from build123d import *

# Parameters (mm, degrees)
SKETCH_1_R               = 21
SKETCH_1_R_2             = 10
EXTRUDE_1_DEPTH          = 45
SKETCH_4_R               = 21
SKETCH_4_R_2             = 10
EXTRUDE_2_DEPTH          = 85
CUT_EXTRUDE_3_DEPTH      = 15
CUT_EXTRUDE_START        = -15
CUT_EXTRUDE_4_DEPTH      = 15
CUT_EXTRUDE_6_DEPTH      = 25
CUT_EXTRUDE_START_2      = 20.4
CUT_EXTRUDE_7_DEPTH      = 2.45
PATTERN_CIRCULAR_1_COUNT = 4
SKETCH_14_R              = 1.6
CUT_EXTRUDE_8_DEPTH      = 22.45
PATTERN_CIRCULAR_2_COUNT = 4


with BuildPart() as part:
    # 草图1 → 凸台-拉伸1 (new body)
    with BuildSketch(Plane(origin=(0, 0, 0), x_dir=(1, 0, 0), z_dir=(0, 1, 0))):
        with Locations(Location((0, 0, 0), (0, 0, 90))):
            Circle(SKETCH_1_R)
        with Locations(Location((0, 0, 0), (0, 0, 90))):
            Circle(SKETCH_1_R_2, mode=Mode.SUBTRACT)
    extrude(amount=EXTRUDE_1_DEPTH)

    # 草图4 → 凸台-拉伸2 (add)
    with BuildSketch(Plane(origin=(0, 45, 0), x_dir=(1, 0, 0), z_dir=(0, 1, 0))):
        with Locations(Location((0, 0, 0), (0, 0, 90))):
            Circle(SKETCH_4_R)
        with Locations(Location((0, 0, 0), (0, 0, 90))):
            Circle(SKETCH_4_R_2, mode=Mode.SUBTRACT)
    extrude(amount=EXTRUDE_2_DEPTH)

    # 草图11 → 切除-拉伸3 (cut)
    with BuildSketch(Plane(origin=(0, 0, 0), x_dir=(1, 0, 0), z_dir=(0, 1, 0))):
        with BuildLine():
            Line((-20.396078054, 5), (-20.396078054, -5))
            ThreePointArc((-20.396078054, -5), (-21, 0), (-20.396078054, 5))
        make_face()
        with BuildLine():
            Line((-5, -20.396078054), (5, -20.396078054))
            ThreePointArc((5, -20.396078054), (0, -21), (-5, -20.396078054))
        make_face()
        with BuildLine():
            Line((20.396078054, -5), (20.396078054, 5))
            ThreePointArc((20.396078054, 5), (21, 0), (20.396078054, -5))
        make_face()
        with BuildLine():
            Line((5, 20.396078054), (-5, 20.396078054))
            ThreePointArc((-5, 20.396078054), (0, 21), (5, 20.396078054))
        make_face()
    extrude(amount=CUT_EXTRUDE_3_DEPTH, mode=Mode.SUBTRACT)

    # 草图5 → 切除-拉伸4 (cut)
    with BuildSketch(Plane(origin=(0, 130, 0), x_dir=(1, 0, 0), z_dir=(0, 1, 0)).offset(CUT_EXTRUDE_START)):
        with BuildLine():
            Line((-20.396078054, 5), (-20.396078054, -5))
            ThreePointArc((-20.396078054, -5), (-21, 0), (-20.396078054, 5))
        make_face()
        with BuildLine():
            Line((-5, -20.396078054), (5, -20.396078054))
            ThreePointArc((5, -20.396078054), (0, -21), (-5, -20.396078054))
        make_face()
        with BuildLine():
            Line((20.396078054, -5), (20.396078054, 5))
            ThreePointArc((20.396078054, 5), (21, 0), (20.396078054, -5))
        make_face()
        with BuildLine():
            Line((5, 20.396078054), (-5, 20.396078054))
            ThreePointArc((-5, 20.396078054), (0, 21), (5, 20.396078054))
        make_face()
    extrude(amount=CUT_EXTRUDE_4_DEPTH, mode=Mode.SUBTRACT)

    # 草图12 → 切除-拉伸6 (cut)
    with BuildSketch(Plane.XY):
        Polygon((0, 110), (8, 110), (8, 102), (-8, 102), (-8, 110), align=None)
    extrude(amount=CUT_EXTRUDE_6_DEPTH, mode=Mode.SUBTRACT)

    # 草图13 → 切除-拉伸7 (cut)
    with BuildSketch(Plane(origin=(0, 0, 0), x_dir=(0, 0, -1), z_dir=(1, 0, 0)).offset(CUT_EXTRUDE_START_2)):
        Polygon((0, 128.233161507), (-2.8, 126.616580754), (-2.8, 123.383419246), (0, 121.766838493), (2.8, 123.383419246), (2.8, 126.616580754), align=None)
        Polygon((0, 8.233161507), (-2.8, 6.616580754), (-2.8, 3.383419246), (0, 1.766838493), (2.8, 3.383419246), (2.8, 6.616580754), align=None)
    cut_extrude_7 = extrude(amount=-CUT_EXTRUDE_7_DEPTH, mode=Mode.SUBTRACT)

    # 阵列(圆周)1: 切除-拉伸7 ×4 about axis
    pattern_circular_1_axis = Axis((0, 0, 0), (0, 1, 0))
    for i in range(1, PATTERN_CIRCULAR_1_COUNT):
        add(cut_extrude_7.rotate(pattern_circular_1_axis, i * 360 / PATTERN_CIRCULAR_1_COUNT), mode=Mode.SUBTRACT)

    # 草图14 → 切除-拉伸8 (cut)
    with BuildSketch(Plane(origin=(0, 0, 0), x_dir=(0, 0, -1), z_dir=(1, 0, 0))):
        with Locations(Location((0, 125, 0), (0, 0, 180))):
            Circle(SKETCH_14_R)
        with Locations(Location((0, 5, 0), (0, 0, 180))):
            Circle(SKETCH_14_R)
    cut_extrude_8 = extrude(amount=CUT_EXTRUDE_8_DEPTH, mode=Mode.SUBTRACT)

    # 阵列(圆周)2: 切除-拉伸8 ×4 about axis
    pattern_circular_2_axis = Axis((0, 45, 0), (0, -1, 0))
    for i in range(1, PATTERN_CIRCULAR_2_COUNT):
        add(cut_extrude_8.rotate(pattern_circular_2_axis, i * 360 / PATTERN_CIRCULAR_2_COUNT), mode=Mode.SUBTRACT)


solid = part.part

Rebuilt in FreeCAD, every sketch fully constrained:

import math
import FreeCAD as App
import Part
import Sketcher
Q = App.Units.Quantity


def add_polygon(sketch, points):
    """Adds a closed chain of lines whose ends are joined by coincident constraints."""
    first, n = sketch.GeometryCount, len(points)
    for a, b in zip(points, points[1:] + points[:1]):
        sketch.addGeometry(Part.LineSegment(App.Vector(*a, 0), App.Vector(*b, 0)), False)
    for i in range(n):
        sketch.addConstraint(Sketcher.Constraint("Coincident", first + i, 2, first + (i + 1) % n, 1))

doc = App.newDocument("Part")
body = doc.addObject("PartDesign::Body", "Body")

sketch1 = body.newObject("Sketcher::SketchObject", "Sketch")
sketch1.AttachmentSupport = (doc.getObject("XZ_Plane"), [""])
sketch1.MapMode = "FlatFace"
sketch1.addGeometry([
    Part.Circle(App.Vector(0, 0, 0), App.Vector(0, 0, 1), 21),
    Part.Circle(App.Vector(0, 0, 0), App.Vector(0, 0, 1), 10),
], False)
sketch1.addConstraint([
    Sketcher.Constraint("Coincident", 0, 3, -1, 1),
    Sketcher.Constraint("Coincident", 1, 3, -1, 1),
    Sketcher.Constraint("Diameter", 0, Q("42 mm")),
    Sketcher.Constraint("Diameter", 1, Q("20 mm")),
])
pad1 = body.newObject("PartDesign::Pad", "Pad")
pad1.Profile = sketch1
pad1.Length = 45
pad1.Reversed = True

sketch2 = body.newObject("Sketcher::SketchObject", "Sketch001")
sketch2.AttachmentSupport = (doc.getObject("XZ_Plane"), [""])
sketch2.MapMode = "FlatFace"
sketch2.AttachmentOffset = App.Placement(App.Vector(0, 0, -45), App.Rotation())
sketch2.addGeometry([
    Part.Circle(App.Vector(0, 0, 0), App.Vector(0, 0, 1), 21),
    Part.Circle(App.Vector(0, 0, 0), App.Vector(0, 0, 1), 10),
], False)
sketch2.addConstraint([
    Sketcher.Constraint("Coincident", 0, 3, -1, 1),
    Sketcher.Constraint("Coincident", 1, 3, -1, 1),
    Sketcher.Constraint("Diameter", 0, Q("42 mm")),
    Sketcher.Constraint("Diameter", 1, Q("20 mm")),
])
pad2 = body.newObject("PartDesign::Pad", "Pad001")
pad2.Profile = sketch2
pad2.Length = 85
pad2.Reversed = True

sketch3 = body.newObject("Sketcher::SketchObject", "Sketch002")
sketch3.AttachmentSupport = (doc.getObject("XZ_Plane"), [""])
sketch3.MapMode = "FlatFace"
sketch3.addGeometry([
    Part.LineSegment(App.Vector(-20, 5, 0), App.Vector(-20, -5, 0)),
    Part.ArcOfCircle(Part.Circle(App.Vector(0, 0, 0), App.Vector(0, 0, 1), 21), math.radians(166), math.radians(194)),
    Part.LineSegment(App.Vector(5, 20, 0), App.Vector(-5, 20, 0)),
    Part.ArcOfCircle(Part.Circle(App.Vector(0, 0, 0), App.Vector(0, 0, 1), 21), math.radians(76), math.radians(104)),
    Part.LineSegment(App.Vector(20, -5, 0), App.Vector(20, 5, 0)),
    Part.ArcOfCircle(Part.Circle(App.Vector(0, 0, 0), App.Vector(0, 0, 1), 21), math.radians(-14), math.radians(14)),
    Part.LineSegment(App.Vector(-5, -20, 0), App.Vector(5, -20, 0)),
    Part.ArcOfCircle(Part.Circle(App.Vector(0, 0, 0), App.Vector(0, 0, 1), 21), math.radians(-104), math.radians(-76)),
], False)
sketch3.addConstraint([
    Sketcher.Constraint("Coincident", 0, 1, 1, 1),
    Sketcher.Constraint("Coincident", 1, 2, 0, 2),
    Sketcher.Constraint("Coincident", 2, 1, 3, 1),
    Sketcher.Constraint("Coincident", 3, 2, 2, 2),
    Sketcher.Constraint("Coincident", 4, 1, 5, 1),
    Sketcher.Constraint("Coincident", 5, 2, 4, 2),
    Sketcher.Constraint("Coincident", 6, 1, 7, 1),
    Sketcher.Constraint("Coincident", 7, 2, 6, 2),
    Sketcher.Constraint("Vertical", 0),
    Sketcher.Constraint("Horizontal", 2),
    Sketcher.Constraint("Vertical", 4),
    Sketcher.Constraint("Horizontal", 6),
    Sketcher.Constraint("Coincident", 1, 3, -1, 1),
    Sketcher.Constraint("Coincident", 3, 3, -1, 1),
    Sketcher.Constraint("Coincident", 5, 3, -1, 1),
    Sketcher.Constraint("Coincident", 7, 3, -1, 1),
    Sketcher.Constraint("Equal", 1, 3),
    Sketcher.Constraint("Equal", 3, 5),
    Sketcher.Constraint("Equal", 5, 7),
    Sketcher.Constraint("Horizontal", 1, 2, 4, 1),
    Sketcher.Constraint("Vertical", 3, 2, 6, 1),
    Sketcher.Constraint("Equal", 6, 0),
    Sketcher.Constraint("Radius", 1, Q("21 mm")),
    Sketcher.Constraint("DistanceX", 2, 2, 2, 1, Q("10 mm")),
])
pocket1 = body.newObject("PartDesign::Pocket", "Pocket")
pocket1.Profile = sketch3
pocket1.Length = 15

sketch4 = body.newObject("Sketcher::SketchObject", "Sketch003")
sketch4.AttachmentSupport = (doc.getObject("XZ_Plane"), [""])
sketch4.MapMode = "FlatFace"
sketch4.AttachmentOffset = App.Placement(App.Vector(0, 0, -115), App.Rotation())
sketch4.addGeometry([
    Part.LineSegment(App.Vector(-20, 5, 0), App.Vector(-20, -5, 0)),
    Part.ArcOfCircle(Part.Circle(App.Vector(0, 0, 0), App.Vector(0, 0, 1), 21), math.radians(166), math.radians(194)),
    Part.LineSegment(App.Vector(5, 20, 0), App.Vector(-5, 20, 0)),
    Part.ArcOfCircle(Part.Circle(App.Vector(0, 0, 0), App.Vector(0, 0, 1), 21), math.radians(76), math.radians(104)),
    Part.LineSegment(App.Vector(20, -5, 0), App.Vector(20, 5, 0)),
    Part.ArcOfCircle(Part.Circle(App.Vector(0, 0, 0), App.Vector(0, 0, 1), 21), math.radians(-14), math.radians(14)),
    Part.LineSegment(App.Vector(-5, -20, 0), App.Vector(5, -20, 0)),
    Part.ArcOfCircle(Part.Circle(App.Vector(0, 0, 0), App.Vector(0, 0, 1), 21), math.radians(-104), math.radians(-76)),
], False)
sketch4.addConstraint([
    Sketcher.Constraint("Coincident", 0, 1, 1, 1),
    Sketcher.Constraint("Coincident", 1, 2, 0, 2),
    Sketcher.Constraint("Coincident", 2, 1, 3, 1),
    Sketcher.Constraint("Coincident", 3, 2, 2, 2),
    Sketcher.Constraint("Coincident", 4, 1, 5, 1),
    Sketcher.Constraint("Coincident", 5, 2, 4, 2),
    Sketcher.Constraint("Coincident", 6, 1, 7, 1),
    Sketcher.Constraint("Coincident", 7, 2, 6, 2),
    Sketcher.Constraint("Vertical", 0),
    Sketcher.Constraint("Horizontal", 2),
    Sketcher.Constraint("Vertical", 4),
    Sketcher.Constraint("Horizontal", 6),
    Sketcher.Constraint("Coincident", 1, 3, -1, 1),
    Sketcher.Constraint("Coincident", 3, 3, -1, 1),
    Sketcher.Constraint("Coincident", 5, 3, -1, 1),
    Sketcher.Constraint("Coincident", 7, 3, -1, 1),
    Sketcher.Constraint("Equal", 1, 3),
    Sketcher.Constraint("Equal", 3, 5),
    Sketcher.Constraint("Equal", 5, 7),
    Sketcher.Constraint("Horizontal", 1, 2, 4, 1),
    Sketcher.Constraint("Vertical", 3, 2, 6, 1),
    Sketcher.Constraint("Equal", 6, 0),
    Sketcher.Constraint("Radius", 1, Q("21 mm")),
    Sketcher.Constraint("DistanceX", 2, 2, 2, 1, Q("10 mm")),
])
pocket2 = body.newObject("PartDesign::Pocket", "Pocket001")
pocket2.Profile = sketch4
pocket2.Length = 15

sketch5 = body.newObject("Sketcher::SketchObject", "Sketch004")
sketch5.AttachmentSupport = (doc.getObject("XY_Plane"), [""])
sketch5.MapMode = "FlatFace"
add_polygon(sketch5, [(8, 110), (-8, 110), (-8, 102), (8, 102)])
sketch5.addConstraint([
    Sketcher.Constraint("Horizontal", 0),
    Sketcher.Constraint("Vertical", 1),
    Sketcher.Constraint("Horizontal", 2),
    Sketcher.Constraint("Vertical", 3),
    Sketcher.Constraint("DistanceX", 0, 2, 0, 1, Q("16 mm")),
    Sketcher.Constraint("DistanceY", 1, 2, 1, 1, Q("8 mm")),
    Sketcher.Constraint("DistanceX", 0, 2, -1, 1, Q("8 mm")),
    Sketcher.Constraint("DistanceY", -1, 1, 0, 2, Q("110 mm")),
])
pocket3 = body.newObject("PartDesign::Pocket", "Pocket002")
pocket3.Profile = sketch5
pocket3.Length = 25
pocket3.Reversed = True

sketch6 = body.newObject("Sketcher::SketchObject", "Sketch005")
sketch6.AttachmentSupport = (doc.getObject("YZ_Plane"), [""])
sketch6.MapMode = "FlatFace"
sketch6.AttachmentOffset = App.Placement(App.Vector(0, 0, 20.4), App.Rotation())
add_polygon(sketch6, [(128.2, 0), (126.6, 2.8), (123.4, 2.8), (121.8, 0), (123.4, -2.8), (126.6, -2.8)])
add_polygon(sketch6, [(8.2, 0), (6.6, 2.8), (3.4, 2.8), (1.8, 0), (3.4, -2.8), (6.6, -2.8)])
sketch6.addConstraint([
    Sketcher.Constraint("Horizontal", 1),
    Sketcher.Constraint("Horizontal", 4),
    Sketcher.Constraint("Horizontal", 7),
    Sketcher.Constraint("Horizontal", 10),
    Sketcher.Constraint("Symmetric", 1, 2, 3, 2, -1),
    Sketcher.Constraint("Symmetric", 7, 2, 9, 2, -1),
    Sketcher.Constraint("PointOnObject", 2, 2, -1),
    Sketcher.Constraint("PointOnObject", 5, 2, -1),
    Sketcher.Constraint("PointOnObject", 8, 2, -1),
    Sketcher.Constraint("PointOnObject", 11, 2, -1),
    Sketcher.Constraint("Parallel", 0, 3),
    Sketcher.Constraint("Parallel", 2, 5),
    Sketcher.Constraint("Parallel", 3, 6),
    Sketcher.Constraint("Parallel", 5, 8),
    Sketcher.Constraint("Parallel", 8, 11),
    Sketcher.Constraint("Horizontal", 1, 2, 6, 2),
    Sketcher.Constraint("Equal", 4, 7),
    Sketcher.Constraint("Angle", 0, Q("120 deg")),
    Sketcher.Constraint("DistanceX", 6, 2, 0, 2, Q("120 mm")),
    Sketcher.Constraint("DistanceY", -1, 1, 0, 2, Q("2.8 mm")),
    Sketcher.Constraint("DistanceX", 1, 2, 1, 1, Q("3.233162 mm")),
    Sketcher.Constraint("DistanceX", -1, 1, 0, 2, Q("126.616581 mm")),
])
pocket4 = body.newObject("PartDesign::Pocket", "Pocket003")
pocket4.Profile = sketch6
pocket4.Length = 2.45
doc.recompute()

polarpattern = body.newObject("PartDesign::PolarPattern", "PolarPattern")
polarpattern.Originals = [pocket4]
polarpattern.Axis = (doc.getObject("Y_Axis"), [""])
polarpattern.Angle = 360
polarpattern.Occurrences = 4
body.Tip = polarpattern

sketch7 = body.newObject("Sketcher::SketchObject", "Sketch006")
sketch7.AttachmentSupport = (doc.getObject("YZ_Plane"), [""])
sketch7.MapMode = "FlatFace"
sketch7.addGeometry([
    Part.Circle(App.Vector(125, 0, 0), App.Vector(0, 0, 1), 1.6),
    Part.Circle(App.Vector(5, 0, 0), App.Vector(0, 0, 1), 1.6),
], False)
sketch7.addConstraint([
    Sketcher.Constraint("Equal", 0, 1),
    Sketcher.Constraint("PointOnObject", 0, 3, -1),
    Sketcher.Constraint("PointOnObject", 1, 3, -1),
    Sketcher.Constraint("Diameter", 0, Q("3.2 mm")),
    Sketcher.Constraint("DistanceX", -1, 1, 0, 3, Q("125 mm")),
    Sketcher.Constraint("DistanceX", -1, 1, 1, 3, Q("5 mm")),
])
pocket5 = body.newObject("PartDesign::Pocket", "Pocket004")
pocket5.Profile = sketch7
pocket5.Length = 22.45
pocket5.Reversed = True
doc.recompute()

polarpattern2 = body.newObject("PartDesign::PolarPattern", "PolarPattern001")
polarpattern2.Originals = [pocket5]
polarpattern2.Axis = (doc.getObject("Y_Axis"), [""])
polarpattern2.Angle = 360
polarpattern2.Occurrences = 4
body.Tip = polarpattern2

doc.recompute()
